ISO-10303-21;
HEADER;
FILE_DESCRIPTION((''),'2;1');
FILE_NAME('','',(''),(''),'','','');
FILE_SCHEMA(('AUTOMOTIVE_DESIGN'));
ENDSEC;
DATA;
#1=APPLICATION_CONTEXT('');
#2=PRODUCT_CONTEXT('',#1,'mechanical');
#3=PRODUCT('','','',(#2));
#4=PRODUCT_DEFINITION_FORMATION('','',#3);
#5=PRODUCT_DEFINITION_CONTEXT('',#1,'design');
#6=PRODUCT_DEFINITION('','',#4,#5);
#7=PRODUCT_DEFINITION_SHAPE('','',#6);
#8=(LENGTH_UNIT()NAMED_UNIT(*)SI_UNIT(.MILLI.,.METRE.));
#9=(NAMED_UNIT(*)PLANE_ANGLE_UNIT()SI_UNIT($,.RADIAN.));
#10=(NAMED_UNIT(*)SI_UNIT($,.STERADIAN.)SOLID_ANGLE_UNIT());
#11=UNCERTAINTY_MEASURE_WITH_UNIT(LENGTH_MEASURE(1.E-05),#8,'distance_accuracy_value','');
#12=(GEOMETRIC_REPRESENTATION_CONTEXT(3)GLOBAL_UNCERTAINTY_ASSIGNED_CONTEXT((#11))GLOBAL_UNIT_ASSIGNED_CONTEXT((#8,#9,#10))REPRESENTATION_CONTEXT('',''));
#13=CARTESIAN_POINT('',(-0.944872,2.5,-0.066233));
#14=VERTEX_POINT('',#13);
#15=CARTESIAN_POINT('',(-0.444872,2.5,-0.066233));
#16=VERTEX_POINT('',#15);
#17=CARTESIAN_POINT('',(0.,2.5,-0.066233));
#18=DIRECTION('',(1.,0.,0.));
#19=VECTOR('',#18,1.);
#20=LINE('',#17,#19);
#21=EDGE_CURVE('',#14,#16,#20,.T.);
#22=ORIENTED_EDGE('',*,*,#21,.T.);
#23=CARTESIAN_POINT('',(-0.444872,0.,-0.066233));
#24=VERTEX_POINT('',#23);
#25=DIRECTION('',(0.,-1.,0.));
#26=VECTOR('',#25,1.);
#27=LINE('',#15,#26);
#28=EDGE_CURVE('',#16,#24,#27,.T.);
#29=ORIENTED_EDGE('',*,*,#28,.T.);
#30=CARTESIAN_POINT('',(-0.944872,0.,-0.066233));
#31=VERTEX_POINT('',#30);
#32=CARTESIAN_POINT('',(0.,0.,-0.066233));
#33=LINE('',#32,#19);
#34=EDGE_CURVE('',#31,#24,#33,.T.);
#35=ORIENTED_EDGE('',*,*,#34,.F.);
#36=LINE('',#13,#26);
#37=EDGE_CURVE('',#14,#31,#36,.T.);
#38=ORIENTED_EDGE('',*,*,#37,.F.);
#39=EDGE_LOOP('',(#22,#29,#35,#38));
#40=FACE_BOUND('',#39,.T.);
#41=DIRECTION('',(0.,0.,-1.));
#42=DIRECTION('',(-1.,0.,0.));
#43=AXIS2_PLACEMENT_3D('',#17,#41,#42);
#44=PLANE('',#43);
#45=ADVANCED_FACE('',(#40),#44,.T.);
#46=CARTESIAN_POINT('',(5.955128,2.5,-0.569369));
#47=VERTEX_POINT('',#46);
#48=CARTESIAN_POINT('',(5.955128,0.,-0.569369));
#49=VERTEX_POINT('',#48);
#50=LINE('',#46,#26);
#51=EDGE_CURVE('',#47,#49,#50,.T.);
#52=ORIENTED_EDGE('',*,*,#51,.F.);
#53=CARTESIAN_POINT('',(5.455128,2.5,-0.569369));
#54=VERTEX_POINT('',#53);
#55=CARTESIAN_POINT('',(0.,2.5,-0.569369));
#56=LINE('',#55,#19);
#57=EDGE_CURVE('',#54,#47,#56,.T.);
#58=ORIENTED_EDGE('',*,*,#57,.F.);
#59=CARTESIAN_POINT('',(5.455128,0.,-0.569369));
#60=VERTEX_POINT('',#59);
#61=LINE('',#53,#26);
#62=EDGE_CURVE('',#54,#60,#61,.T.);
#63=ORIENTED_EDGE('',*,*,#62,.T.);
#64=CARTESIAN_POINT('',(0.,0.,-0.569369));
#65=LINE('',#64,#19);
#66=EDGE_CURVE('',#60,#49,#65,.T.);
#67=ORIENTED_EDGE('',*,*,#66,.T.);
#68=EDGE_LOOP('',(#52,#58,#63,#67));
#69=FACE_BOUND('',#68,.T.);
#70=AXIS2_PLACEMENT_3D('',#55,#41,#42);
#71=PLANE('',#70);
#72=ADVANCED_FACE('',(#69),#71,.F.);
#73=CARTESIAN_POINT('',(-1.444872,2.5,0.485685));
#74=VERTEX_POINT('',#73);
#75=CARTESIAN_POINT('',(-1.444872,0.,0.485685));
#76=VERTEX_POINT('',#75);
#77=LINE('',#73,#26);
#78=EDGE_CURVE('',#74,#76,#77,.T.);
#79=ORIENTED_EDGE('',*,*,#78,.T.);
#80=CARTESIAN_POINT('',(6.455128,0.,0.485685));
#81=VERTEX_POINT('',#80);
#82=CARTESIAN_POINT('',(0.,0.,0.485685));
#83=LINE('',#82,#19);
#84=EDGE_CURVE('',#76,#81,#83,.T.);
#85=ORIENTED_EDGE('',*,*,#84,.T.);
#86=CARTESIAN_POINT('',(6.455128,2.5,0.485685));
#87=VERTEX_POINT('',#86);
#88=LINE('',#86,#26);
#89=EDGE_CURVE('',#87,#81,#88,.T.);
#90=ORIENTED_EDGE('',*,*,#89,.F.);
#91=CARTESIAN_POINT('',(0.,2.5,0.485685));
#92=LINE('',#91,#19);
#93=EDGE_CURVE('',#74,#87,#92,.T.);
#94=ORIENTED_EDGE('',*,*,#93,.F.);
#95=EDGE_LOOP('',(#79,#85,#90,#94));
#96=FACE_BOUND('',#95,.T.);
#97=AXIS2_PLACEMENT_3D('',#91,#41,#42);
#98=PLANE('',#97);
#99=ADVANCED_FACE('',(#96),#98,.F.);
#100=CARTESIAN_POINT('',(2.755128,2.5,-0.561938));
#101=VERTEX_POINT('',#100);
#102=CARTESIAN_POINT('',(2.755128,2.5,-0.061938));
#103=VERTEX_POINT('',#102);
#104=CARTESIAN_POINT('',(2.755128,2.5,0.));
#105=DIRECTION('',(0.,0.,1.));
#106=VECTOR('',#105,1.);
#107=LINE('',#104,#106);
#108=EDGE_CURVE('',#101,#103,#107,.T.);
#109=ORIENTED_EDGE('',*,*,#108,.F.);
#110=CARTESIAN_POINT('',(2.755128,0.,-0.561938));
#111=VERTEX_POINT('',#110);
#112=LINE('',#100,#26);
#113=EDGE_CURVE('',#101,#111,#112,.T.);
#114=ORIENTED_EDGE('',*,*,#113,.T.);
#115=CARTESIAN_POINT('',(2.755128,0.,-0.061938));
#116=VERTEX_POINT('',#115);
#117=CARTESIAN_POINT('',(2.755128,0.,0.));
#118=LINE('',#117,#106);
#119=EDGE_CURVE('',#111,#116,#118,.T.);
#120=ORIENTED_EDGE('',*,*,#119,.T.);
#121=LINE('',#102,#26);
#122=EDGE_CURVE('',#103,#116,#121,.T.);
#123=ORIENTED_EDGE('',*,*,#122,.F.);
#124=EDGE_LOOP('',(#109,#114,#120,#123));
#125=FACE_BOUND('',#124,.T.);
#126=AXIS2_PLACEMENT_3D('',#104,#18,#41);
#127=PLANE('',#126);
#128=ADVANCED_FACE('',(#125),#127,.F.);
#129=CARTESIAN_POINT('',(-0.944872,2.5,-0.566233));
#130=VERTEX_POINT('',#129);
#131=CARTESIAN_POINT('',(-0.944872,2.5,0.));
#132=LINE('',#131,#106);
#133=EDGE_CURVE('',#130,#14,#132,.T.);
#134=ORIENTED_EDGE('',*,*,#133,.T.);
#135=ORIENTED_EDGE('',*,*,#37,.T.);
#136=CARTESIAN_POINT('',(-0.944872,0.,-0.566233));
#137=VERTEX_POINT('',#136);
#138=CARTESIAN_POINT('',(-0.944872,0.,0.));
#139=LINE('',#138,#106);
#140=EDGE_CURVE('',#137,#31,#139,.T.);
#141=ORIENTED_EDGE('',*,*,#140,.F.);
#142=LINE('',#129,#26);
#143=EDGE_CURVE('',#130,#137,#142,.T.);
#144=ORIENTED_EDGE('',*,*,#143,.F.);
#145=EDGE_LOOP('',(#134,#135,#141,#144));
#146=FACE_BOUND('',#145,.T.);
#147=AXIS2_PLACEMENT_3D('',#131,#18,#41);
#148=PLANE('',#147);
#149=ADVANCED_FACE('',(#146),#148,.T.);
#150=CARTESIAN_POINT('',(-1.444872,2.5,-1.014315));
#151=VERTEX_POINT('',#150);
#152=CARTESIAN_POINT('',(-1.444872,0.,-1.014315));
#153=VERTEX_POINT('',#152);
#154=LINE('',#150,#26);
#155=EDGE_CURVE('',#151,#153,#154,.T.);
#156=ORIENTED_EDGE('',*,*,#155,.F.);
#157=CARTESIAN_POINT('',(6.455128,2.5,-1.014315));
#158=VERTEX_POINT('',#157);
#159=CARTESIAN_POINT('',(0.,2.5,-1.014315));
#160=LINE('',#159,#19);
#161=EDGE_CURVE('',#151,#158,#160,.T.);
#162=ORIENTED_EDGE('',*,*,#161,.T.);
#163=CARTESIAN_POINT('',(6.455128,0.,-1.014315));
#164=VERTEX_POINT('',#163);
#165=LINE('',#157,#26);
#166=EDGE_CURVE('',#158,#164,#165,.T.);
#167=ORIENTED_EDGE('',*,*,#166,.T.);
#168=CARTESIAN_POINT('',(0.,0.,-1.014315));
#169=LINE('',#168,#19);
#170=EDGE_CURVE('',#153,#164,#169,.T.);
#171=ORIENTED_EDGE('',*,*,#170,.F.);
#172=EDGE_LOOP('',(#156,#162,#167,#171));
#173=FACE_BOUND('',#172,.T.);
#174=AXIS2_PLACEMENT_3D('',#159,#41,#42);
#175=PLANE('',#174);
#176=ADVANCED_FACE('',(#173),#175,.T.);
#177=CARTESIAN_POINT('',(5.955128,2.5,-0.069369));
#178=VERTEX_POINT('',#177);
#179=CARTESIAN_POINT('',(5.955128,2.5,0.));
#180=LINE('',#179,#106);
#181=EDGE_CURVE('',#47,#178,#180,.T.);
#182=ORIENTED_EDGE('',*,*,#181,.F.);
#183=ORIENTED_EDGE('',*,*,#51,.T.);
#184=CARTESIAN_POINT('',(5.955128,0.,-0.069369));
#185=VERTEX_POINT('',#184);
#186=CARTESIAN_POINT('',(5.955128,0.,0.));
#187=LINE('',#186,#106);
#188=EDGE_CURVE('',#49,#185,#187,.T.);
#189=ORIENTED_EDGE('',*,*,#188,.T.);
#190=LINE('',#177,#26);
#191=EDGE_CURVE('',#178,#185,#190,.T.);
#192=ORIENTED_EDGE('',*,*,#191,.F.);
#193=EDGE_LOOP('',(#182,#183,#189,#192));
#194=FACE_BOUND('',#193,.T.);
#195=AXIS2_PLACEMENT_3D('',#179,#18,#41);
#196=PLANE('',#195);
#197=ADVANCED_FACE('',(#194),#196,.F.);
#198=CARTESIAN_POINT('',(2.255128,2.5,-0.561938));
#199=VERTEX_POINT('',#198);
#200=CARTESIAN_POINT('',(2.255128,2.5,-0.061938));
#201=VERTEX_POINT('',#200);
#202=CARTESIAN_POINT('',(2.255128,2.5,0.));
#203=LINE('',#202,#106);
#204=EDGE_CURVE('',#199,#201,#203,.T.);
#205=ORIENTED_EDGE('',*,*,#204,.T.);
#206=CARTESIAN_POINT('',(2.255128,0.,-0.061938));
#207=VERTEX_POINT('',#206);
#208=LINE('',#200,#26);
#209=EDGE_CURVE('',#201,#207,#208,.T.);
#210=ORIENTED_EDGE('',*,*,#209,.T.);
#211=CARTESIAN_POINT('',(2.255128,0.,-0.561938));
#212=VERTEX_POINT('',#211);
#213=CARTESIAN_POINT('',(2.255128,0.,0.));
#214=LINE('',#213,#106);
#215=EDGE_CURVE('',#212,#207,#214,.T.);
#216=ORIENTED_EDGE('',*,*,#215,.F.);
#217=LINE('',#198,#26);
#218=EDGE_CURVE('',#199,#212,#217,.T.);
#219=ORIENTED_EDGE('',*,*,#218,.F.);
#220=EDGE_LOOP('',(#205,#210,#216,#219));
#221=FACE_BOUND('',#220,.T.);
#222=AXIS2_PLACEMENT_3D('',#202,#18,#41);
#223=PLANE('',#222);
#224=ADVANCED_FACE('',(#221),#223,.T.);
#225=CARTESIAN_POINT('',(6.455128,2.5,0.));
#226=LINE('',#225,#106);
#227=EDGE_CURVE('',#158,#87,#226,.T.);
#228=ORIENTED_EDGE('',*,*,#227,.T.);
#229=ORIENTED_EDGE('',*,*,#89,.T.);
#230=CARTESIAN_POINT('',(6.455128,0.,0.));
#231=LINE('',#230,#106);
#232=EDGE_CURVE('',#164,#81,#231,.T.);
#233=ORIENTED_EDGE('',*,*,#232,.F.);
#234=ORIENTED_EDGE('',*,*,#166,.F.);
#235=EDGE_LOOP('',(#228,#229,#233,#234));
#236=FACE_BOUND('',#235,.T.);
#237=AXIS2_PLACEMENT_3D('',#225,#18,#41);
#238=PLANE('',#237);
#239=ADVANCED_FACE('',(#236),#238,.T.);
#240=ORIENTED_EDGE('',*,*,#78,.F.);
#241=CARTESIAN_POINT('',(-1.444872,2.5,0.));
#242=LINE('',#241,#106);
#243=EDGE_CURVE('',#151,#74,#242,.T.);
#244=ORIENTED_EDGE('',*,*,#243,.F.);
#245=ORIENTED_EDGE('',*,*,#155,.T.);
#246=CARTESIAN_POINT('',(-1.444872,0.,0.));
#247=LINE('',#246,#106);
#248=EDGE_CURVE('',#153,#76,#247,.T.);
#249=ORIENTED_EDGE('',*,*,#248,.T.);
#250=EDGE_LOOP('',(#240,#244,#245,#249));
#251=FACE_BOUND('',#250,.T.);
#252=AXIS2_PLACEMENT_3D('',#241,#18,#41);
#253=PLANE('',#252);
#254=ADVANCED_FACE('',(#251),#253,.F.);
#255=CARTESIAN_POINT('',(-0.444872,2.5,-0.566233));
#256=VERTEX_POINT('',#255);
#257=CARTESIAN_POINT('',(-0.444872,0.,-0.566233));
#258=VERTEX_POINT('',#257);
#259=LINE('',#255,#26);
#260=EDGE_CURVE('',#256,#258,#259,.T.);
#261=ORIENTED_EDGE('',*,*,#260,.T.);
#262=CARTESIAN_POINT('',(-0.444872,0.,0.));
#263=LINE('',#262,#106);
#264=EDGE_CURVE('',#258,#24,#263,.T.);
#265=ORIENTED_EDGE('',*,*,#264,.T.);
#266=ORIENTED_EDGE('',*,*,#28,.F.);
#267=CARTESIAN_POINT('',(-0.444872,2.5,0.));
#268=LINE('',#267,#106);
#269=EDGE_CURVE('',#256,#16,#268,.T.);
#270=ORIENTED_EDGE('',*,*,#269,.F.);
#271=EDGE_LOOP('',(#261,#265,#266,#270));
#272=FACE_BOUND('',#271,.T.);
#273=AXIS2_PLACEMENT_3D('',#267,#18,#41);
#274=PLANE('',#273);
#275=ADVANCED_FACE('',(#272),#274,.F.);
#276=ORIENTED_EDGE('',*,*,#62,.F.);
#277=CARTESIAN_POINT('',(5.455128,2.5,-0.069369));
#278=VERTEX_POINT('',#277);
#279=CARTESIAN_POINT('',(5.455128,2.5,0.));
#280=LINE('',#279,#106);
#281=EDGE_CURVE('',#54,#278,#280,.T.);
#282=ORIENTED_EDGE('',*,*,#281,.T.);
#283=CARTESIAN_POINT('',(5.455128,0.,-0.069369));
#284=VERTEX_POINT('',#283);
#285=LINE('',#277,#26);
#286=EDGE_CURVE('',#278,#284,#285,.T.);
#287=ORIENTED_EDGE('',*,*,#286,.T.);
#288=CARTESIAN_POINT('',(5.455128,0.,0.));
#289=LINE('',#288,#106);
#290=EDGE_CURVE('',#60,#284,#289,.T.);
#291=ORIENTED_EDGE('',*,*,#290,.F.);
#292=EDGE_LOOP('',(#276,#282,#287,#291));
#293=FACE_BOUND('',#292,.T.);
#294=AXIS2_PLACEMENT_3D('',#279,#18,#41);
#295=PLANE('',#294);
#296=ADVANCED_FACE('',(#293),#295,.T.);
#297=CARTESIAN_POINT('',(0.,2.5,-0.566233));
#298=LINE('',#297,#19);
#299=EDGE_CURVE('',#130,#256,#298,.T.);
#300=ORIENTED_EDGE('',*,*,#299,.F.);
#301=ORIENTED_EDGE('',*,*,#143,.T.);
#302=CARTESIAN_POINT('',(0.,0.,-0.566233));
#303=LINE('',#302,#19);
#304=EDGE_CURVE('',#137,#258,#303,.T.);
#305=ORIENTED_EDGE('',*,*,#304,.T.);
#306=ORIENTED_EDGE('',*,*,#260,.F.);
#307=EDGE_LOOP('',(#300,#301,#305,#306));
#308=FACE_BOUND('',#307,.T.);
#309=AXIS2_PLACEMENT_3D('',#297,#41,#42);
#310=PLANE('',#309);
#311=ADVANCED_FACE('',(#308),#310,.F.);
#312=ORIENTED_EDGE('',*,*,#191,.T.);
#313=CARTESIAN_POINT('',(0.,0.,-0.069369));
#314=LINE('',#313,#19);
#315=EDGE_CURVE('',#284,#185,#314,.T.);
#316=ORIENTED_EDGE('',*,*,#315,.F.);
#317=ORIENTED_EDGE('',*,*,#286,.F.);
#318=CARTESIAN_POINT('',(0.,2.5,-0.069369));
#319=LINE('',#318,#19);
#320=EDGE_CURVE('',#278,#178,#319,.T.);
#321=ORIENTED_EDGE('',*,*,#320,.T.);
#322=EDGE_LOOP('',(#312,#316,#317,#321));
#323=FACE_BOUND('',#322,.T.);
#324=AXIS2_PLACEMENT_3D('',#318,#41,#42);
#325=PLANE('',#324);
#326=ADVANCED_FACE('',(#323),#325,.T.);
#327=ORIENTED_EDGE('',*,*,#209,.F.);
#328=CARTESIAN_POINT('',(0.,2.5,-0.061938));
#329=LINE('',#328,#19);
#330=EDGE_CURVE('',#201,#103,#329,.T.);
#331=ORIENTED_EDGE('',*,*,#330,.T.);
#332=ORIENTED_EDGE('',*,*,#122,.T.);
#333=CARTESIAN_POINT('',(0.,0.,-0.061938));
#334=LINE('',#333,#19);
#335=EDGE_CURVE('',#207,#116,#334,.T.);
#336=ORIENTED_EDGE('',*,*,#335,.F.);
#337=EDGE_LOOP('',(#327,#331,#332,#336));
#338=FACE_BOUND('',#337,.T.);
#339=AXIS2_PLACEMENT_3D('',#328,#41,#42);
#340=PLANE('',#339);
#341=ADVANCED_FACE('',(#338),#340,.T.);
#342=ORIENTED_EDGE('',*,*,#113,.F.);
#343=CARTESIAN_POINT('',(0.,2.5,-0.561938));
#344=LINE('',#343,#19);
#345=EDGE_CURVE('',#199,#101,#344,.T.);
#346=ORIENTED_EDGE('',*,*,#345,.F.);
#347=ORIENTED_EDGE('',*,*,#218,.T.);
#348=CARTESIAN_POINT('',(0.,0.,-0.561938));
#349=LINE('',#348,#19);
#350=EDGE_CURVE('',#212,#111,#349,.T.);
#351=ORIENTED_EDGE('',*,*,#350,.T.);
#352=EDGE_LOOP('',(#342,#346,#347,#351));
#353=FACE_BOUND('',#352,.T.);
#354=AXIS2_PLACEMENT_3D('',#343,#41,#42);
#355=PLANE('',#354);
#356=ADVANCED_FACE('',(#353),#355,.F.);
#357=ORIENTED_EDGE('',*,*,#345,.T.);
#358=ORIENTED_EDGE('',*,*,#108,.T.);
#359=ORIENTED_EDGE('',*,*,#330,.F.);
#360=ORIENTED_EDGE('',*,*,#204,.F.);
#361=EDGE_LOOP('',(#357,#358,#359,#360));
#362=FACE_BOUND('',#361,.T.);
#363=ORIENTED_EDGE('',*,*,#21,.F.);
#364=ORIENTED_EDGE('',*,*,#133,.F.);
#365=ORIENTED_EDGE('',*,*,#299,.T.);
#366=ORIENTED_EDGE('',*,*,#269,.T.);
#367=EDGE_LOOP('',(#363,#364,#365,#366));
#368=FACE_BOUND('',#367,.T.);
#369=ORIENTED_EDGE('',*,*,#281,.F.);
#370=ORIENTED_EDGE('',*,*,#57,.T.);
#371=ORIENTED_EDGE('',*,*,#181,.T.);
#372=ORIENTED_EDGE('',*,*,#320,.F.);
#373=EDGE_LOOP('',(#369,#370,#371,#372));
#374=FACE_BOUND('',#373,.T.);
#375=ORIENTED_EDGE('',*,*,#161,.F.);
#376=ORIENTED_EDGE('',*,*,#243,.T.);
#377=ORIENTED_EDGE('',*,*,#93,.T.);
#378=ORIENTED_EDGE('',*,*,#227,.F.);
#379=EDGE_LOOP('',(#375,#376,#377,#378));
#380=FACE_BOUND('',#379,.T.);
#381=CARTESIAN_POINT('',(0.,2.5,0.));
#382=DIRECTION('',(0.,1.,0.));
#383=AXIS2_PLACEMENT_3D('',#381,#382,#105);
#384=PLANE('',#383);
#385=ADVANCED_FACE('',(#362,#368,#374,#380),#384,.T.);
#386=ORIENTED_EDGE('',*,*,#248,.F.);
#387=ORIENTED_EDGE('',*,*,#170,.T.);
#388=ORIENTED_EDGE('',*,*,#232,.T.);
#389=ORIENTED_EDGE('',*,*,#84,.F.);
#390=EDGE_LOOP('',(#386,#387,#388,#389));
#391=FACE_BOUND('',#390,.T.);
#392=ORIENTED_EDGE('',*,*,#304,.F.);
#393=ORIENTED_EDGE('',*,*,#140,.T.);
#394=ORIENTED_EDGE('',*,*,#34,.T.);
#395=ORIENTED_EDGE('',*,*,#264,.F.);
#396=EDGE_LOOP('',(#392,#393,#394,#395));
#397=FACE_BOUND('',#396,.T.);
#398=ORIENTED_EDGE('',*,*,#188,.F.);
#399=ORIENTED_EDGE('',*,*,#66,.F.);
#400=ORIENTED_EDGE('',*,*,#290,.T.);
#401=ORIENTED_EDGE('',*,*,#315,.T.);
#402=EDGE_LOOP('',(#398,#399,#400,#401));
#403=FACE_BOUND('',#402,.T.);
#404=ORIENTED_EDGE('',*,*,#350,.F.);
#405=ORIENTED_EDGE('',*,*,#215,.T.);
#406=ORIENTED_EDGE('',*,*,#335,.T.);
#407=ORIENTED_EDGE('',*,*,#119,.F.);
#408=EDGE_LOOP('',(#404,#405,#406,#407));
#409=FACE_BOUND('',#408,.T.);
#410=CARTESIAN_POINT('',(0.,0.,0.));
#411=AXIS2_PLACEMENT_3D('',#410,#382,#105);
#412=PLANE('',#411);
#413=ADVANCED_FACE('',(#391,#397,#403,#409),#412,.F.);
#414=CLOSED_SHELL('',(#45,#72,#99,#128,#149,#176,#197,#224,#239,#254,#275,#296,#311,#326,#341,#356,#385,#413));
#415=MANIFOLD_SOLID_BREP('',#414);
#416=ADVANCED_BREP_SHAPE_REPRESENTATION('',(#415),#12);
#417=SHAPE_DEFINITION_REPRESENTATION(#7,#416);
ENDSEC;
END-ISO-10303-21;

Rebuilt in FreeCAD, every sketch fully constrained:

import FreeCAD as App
import Part
import Sketcher
from FreeCAD import Vector

doc = App.newDocument("Part")
body = doc.addObject("PartDesign::Body", "Body")

# Sketch on XZ plane
sketch1 = body.newObject("Sketcher::SketchObject", "Sketch")
sketch1.AttachmentSupport = (doc.getObject("XZ_Plane"), [""])
sketch1.MapMode = "FlatFace"
sketch1.addGeometry(Part.LineSegment(Vector(-1.444872, -1.014315, 0), Vector(-1.444872, 0.485685, 0)), False)
sketch1.addGeometry(Part.LineSegment(Vector(-1.444872, 0.485685, 0), Vector(6.455128, 0.485685, 0)), False)
sketch1.addGeometry(Part.LineSegment(Vector(6.455128, 0.485685, 0), Vector(6.455128, -1.014315, 0)), False)
sketch1.addGeometry(Part.LineSegment(Vector(6.455128, -1.014315, 0), Vector(-1.444872, -1.014315, 0)), False)
sketch1.addGeometry(Part.LineSegment(Vector(2.755128, -0.061938, 0), Vector(2.255128, -0.061938, 0)), False)
sketch1.addGeometry(Part.LineSegment(Vector(2.255128, -0.061938, 0), Vector(2.255128, -0.561938, 0)), False)
sketch1.addGeometry(Part.LineSegment(Vector(2.255128, -0.561938, 0), Vector(2.755128, -0.561938, 0)), False)
sketch1.addGeometry(Part.LineSegment(Vector(2.755128, -0.561938, 0), Vector(2.755128, -0.061938, 0)), False)
sketch1.addGeometry(Part.LineSegment(Vector(-0.444872, -0.066233, 0), Vector(-0.944872, -0.066233, 0)), False)
sketch1.addGeometry(Part.LineSegment(Vector(-0.944872, -0.066233, 0), Vector(-0.944872, -0.566233, 0)), False)
sketch1.addGeometry(Part.LineSegment(Vector(-0.944872, -0.566233, 0), Vector(-0.444872, -0.566233, 0)), False)
sketch1.addGeometry(Part.LineSegment(Vector(-0.444872, -0.566233, 0), Vector(-0.444872, -0.066233, 0)), False)
sketch1.addGeometry(Part.LineSegment(Vector(5.955128, -0.069369, 0), Vector(5.455128, -0.069369, 0)), False)
sketch1.addGeometry(Part.LineSegment(Vector(5.455128, -0.069369, 0), Vector(5.455128, -0.569369, 0)), False)
sketch1.addGeometry(Part.LineSegment(Vector(5.455128, -0.569369, 0), Vector(5.955128, -0.569369, 0)), False)
sketch1.addGeometry(Part.LineSegment(Vector(5.955128, -0.569369, 0), Vector(5.955128, -0.069369, 0)), False)
sketch1.addConstraint(Sketcher.Constraint("Coincident", 0, 2, 1, 1))
sketch1.addConstraint(Sketcher.Constraint("Coincident", 1, 2, 2, 1))
sketch1.addConstraint(Sketcher.Constraint("Coincident", 2, 2, 3, 1))
sketch1.addConstraint(Sketcher.Constraint("Coincident", 3, 2, 0, 1))
sketch1.addConstraint(Sketcher.Constraint("Coincident", 4, 2, 5, 1))
sketch1.addConstraint(Sketcher.Constraint("Coincident", 5, 2, 6, 1))
sketch1.addConstraint(Sketcher.Constraint("Coincident", 6, 2, 7, 1))
sketch1.addConstraint(Sketcher.Constraint("Coincident", 7, 2, 4, 1))
sketch1.addConstraint(Sketcher.Constraint("Coincident", 8, 2, 9, 1))
sketch1.addConstraint(Sketcher.Constraint("Coincident", 9, 2, 10, 1))
sketch1.addConstraint(Sketcher.Constraint("Coincident", 10, 2, 11, 1))
sketch1.addConstraint(Sketcher.Constraint("Coincident", 11, 2, 8, 1))
sketch1.addConstraint(Sketcher.Constraint("Coincident", 12, 2, 13, 1))
sketch1.addConstraint(Sketcher.Constraint("Coincident", 13, 2, 14, 1))
sketch1.addConstraint(Sketcher.Constraint("Coincident", 14, 2, 15, 1))
sketch1.addConstraint(Sketcher.Constraint("Coincident", 15, 2, 12, 1))
sketch1.addConstraint(Sketcher.Constraint("Vertical", 0))
sketch1.addConstraint(Sketcher.Constraint("Horizontal", 1))
sketch1.addConstraint(Sketcher.Constraint("Vertical", 2))
sketch1.addConstraint(Sketcher.Constraint("Horizontal", 3))
sketch1.addConstraint(Sketcher.Constraint("Horizontal", 4))
sketch1.addConstraint(Sketcher.Constraint("Vertical", 5))
sketch1.addConstraint(Sketcher.Constraint("Horizontal", 6))
sketch1.addConstraint(Sketcher.Constraint("Vertical", 7))
sketch1.addConstraint(Sketcher.Constraint("Horizontal", 8))
sketch1.addConstraint(Sketcher.Constraint("Vertical", 9))
sketch1.addConstraint(Sketcher.Constraint("Horizontal", 10))
sketch1.addConstraint(Sketcher.Constraint("Vertical", 11))
sketch1.addConstraint(Sketcher.Constraint("Horizontal", 12))
sketch1.addConstraint(Sketcher.Constraint("Vertical", 13))
sketch1.addConstraint(Sketcher.Constraint("Horizontal", 14))
sketch1.addConstraint(Sketcher.Constraint("Vertical", 15))
sketch1.addConstraint(Sketcher.Constraint("Equal", 6, 8))
sketch1.addConstraint(Sketcher.Constraint("Equal", 10, 12))
sketch1.addConstraint(Sketcher.Constraint("Equal", 14, 5))
sketch1.addConstraint(Sketcher.Constraint("Equal", 7, 9))
sketch1.addConstraint(Sketcher.Constraint("Equal", 11, 13))
sketch1.addConstraint(Sketcher.Constraint("DistanceX", 1, 1, 1, 2, 7.9))
sketch1.addConstraint(Sketcher.Constraint("DistanceX", 4, 2, 4, 1, 0.5))
sketch1.addConstraint(Sketcher.Constraint("DistanceY", 0, 1, 0, 2, 1.5))
sketch1.addConstraint(Sketcher.Constraint("DistanceX", 3, 2, 10, 2, 1.0))
sketch1.addConstraint(Sketcher.Constraint("DistanceX", 12, 2, 1, 2, 1.0))
sketch1.addConstraint(Sketcher.Constraint("DistanceX", 0, 2, 4, 2, 3.7))
sketch1.addConstraint(Sketcher.Constraint("DistanceY", 12, 2, -1, 1, 0.069369))
sketch1.addConstraint(Sketcher.Constraint("DistanceY", 12, 2, 7, 2, 0.007431))
sketch1.addConstraint(Sketcher.Constraint("DistanceX", 0, 2, -1, 1, 1.444872))
sketch1.addConstraint(Sketcher.Constraint("DistanceY", -1, 1, 0, 2, 0.485685))
sketch1.addConstraint(Sketcher.Constraint("DistanceY", 8, 2, -1, 1, 0.066233))
pad1 = body.newObject("PartDesign::Pad", "Pad")
pad1.Profile = sketch1
pad1.Length = 2.5
pad1.Reversed = True

doc.recompute()
